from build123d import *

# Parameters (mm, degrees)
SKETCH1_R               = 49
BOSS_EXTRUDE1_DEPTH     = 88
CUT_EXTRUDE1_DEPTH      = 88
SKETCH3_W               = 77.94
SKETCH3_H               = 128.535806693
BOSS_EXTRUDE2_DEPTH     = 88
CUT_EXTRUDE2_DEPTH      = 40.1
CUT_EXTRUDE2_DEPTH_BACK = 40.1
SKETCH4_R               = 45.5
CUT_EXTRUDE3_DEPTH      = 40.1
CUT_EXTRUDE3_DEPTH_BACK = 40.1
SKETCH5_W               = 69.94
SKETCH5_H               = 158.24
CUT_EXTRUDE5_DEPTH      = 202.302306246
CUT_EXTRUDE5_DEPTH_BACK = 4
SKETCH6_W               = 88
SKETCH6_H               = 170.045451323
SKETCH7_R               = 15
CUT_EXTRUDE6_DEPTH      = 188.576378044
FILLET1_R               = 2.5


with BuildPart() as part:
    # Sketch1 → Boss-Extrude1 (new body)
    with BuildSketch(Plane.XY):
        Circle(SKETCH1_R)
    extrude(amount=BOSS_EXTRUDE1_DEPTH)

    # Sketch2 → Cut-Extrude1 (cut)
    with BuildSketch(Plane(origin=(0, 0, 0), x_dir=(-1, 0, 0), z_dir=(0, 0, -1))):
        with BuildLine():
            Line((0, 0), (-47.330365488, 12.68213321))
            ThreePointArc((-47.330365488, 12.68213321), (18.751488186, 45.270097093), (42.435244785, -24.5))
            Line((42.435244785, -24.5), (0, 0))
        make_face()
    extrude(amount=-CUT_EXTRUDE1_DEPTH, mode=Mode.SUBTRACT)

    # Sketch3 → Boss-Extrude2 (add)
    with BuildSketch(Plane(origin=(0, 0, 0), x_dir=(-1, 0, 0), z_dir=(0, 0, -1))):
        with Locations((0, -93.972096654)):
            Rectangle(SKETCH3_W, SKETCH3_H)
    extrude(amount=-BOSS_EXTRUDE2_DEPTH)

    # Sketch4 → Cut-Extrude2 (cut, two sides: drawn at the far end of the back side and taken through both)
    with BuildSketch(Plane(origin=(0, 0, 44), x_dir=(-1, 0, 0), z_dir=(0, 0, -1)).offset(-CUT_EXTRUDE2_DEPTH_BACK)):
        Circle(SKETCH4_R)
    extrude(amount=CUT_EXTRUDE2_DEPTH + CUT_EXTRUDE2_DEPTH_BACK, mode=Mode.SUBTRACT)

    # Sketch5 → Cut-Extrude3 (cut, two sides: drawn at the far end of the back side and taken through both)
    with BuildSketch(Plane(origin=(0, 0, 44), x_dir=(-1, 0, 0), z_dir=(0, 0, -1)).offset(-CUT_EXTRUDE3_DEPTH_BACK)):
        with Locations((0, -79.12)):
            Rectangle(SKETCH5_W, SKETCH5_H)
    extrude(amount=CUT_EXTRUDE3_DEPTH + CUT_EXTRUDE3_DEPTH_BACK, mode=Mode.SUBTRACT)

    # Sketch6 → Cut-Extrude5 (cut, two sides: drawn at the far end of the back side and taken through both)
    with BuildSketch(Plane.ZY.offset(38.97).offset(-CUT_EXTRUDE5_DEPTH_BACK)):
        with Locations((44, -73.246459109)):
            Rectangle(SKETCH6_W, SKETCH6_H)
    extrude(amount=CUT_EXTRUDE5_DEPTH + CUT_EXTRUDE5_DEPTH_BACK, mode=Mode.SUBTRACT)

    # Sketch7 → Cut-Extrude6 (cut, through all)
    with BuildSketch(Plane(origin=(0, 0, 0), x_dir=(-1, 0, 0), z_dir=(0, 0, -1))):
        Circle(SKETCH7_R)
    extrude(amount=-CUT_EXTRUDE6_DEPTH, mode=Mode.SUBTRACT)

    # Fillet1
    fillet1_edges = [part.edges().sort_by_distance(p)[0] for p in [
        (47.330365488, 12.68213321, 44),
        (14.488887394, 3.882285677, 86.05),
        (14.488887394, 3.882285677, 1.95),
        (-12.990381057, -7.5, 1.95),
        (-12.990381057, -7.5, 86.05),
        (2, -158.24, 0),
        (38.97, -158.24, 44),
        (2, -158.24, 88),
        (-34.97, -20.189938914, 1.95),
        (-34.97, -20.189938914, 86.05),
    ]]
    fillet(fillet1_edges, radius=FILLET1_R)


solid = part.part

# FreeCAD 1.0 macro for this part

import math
import FreeCAD as App
import Part
import Sketcher
Q = App.Units.Quantity


def edges_at(feature, points):
    """Names of the edges that pass closest to the given points."""
    edges = feature.Shape.Edges
    near = lambda p: min(range(len(edges)), key=lambda i: edges[i].distToShape(Part.Vertex(*p))[0])
    return sorted({f"Edge{near(p) + 1}" for p in points})

doc = App.newDocument("Part")
body = doc.addObject("PartDesign::Body", "Body")

# Sketch on XY plane
sketch1 = body.newObject("Sketcher::SketchObject", "Sketch")
sketch1.AttachmentSupport = (doc.getObject("XY_Plane"), [""])
sketch1.MapMode = "FlatFace"
sketch1.addGeometry(Part.Circle(App.Vector(0, 0, 0), App.Vector(0, 0, 1), 49), False)
sketch1.addConstraint([
    Sketcher.Constraint("Coincident", 0, 3, -1, 1),
    Sketcher.Constraint("Diameter", 0, Q("98 mm")),
])
pad1 = body.newObject("PartDesign::Pad", "Pad")
pad1.Profile = sketch1
pad1.Length = 88

# Sketch on XY plane
sketch2 = body.newObject("Sketcher::SketchObject", "Sketch001")
sketch2.AttachmentSupport = (doc.getObject("XY_Plane"), [""])
sketch2.MapMode = "FlatFace"
sketch2.addGeometry([
    Part.LineSegment(App.Vector(47, 13, 0), App.Vector(0, 0, 0)),
    Part.LineSegment(App.Vector(0, 0, 0), App.Vector(-42, -24, 0)),
    Part.ArcOfCircle(Part.Circle(App.Vector(0, 0, 0), App.Vector(0, 0, 1), 49), math.radians(15), math.radians(210)),
], False)
sketch2.addConstraint([
    Sketcher.Constraint("Coincident", 0, 2, 1, 1),
    Sketcher.Constraint("Coincident", 1, 2, 2, 2),
    Sketcher.Constraint("Coincident", 2, 1, 0, 1),
    Sketcher.Constraint("Coincident", 2, 3, -1, 1),
    Sketcher.Constraint("Coincident", 0, 2, -1, 1),
    Sketcher.Constraint("Radius", 2, Q("49 mm")),
    Sketcher.Constraint("Angle", 0, Q("-165 deg")),
    Sketcher.Constraint("Angle", 1, Q("-150 deg")),
])
pocket1 = body.newObject("PartDesign::Pocket", "Pocket")
pocket1.Profile = sketch2
pocket1.Length = 88
pocket1.Reversed = True

# Sketch on XY plane
sketch3 = body.newObject("Sketcher::SketchObject", "Sketch002")
sketch3.AttachmentSupport = (doc.getObject("XY_Plane"), [""])
sketch3.MapMode = "FlatFace"
sketch3.addGeometry([
    Part.LineSegment(App.Vector(39, -30, 0), App.Vector(39, -158, 0)),
    Part.LineSegment(App.Vector(39, -158, 0), App.Vector(-39, -158, 0)),
    Part.LineSegment(App.Vector(-39, -158, 0), App.Vector(-39, -30, 0)),
    Part.LineSegment(App.Vector(-39, -30, 0), App.Vector(39, -30, 0)),
], False)
sketch3.addConstraint([
    Sketcher.Constraint("Coincident", 0, 2, 1, 1),
    Sketcher.Constraint("Coincident", 1, 2, 2, 1),
    Sketcher.Constraint("Coincident", 2, 2, 3, 1),
    Sketcher.Constraint("Coincident", 3, 2, 0, 1),
    Sketcher.Constraint("Vertical", 0),
    Sketcher.Constraint("Horizontal", 1),
    Sketcher.Constraint("Vertical", 2),
    Sketcher.Constraint("Horizontal", 3),
    Sketcher.Constraint("DistanceX", 1, 2, 1, 1, Q("77.94 mm")),
    Sketcher.Constraint("DistanceX", -1, 1, 0, 2, Q("38.97 mm")),
    Sketcher.Constraint("DistanceY", 0, 2, -1, 1, Q("158.24 mm")),
    Sketcher.Constraint("DistanceY", 0, 2, 0, 1, Q("128.535807 mm")),
])
pad2 = body.newObject("PartDesign::Pad", "Pad001")
pad2.Profile = sketch3
pad2.Length = 88

# Sketch on XY plane
sketch4 = body.newObject("Sketcher::SketchObject", "Sketch003")
sketch4.AttachmentSupport = (doc.getObject("XY_Plane"), [""])
sketch4.MapMode = "FlatFace"
sketch4.AttachmentOffset = App.Placement(App.Vector(0, 0, 44), App.Rotation())
sketch4.addGeometry(Part.Circle(App.Vector(0, 0, 0), App.Vector(0, 0, 1), 46), False)
sketch4.addConstraint([
    Sketcher.Constraint("Coincident", 0, 3, -1, 1),
    Sketcher.Constraint("Diameter", 0, Q("91 mm")),
])
pocket2 = body.newObject("PartDesign::Pocket", "Pocket001")
pocket2.Profile = sketch4
pocket2.Type = "TwoLengths"
pocket2.Length = 40.1
pocket2.Length2 = 40.1

# Sketch on XY plane
sketch5 = body.newObject("Sketcher::SketchObject", "Sketch004")
sketch5.AttachmentSupport = (doc.getObject("XY_Plane"), [""])
sketch5.MapMode = "FlatFace"
sketch5.AttachmentOffset = App.Placement(App.Vector(0, 0, 44), App.Rotation())
sketch5.addGeometry([
    Part.LineSegment(App.Vector(35, 0, 0), App.Vector(35, -158, 0)),
    Part.LineSegment(App.Vector(35, -158, 0), App.Vector(-35, -158, 0)),
    Part.LineSegment(App.Vector(-35, -158, 0), App.Vector(-35, 0, 0)),
    Part.LineSegment(App.Vector(-35, 0, 0), App.Vector(35, 0, 0)),
], False)
sketch5.addConstraint([
    Sketcher.Constraint("Coincident", 0, 2, 1, 1),
    Sketcher.Constraint("Coincident", 1, 2, 2, 1),
    Sketcher.Constraint("Coincident", 2, 2, 3, 1),
    Sketcher.Constraint("Coincident", 3, 2, 0, 1),
    Sketcher.Constraint("Vertical", 0),
    Sketcher.Constraint("Horizontal", 1),
    Sketcher.Constraint("Vertical", 2),
    Sketcher.Constraint("Horizontal", 3),
    Sketcher.Constraint("Symmetric", 2, 2, 3, 2, -1, 1),
    Sketcher.Constraint("DistanceX", 1, 2, 1, 1, Q("69.94 mm")),
    Sketcher.Constraint("DistanceY", 0, 2, 0, 1, Q("158.24 mm")),
])
pocket3 = body.newObject("PartDesign::Pocket", "Pocket002")
pocket3.Profile = sketch5
pocket3.Type = "TwoLengths"
pocket3.Length = 40.1
pocket3.Length2 = 40.1

# Sketch on YZ plane
sketch6 = body.newObject("Sketcher::SketchObject", "Sketch005")
sketch6.AttachmentSupport = (doc.getObject("YZ_Plane"), [""])
sketch6.MapMode = "FlatFace"
sketch6.AttachmentOffset = App.Placement(App.Vector(0, 0, -38.97), App.Rotation())
sketch6.addGeometry([
    Part.LineSegment(App.Vector(12, 0, 0), App.Vector(-158, 0, 0)),
    Part.LineSegment(App.Vector(-158, 0, 0), App.Vector(-158, 88, 0)),
    Part.LineSegment(App.Vector(-158, 88, 0), App.Vector(12, 88, 0)),
    Part.LineSegment(App.Vector(12, 88, 0), App.Vector(12, 0, 0)),
], False)
sketch6.addConstraint([
    Sketcher.Constraint("Coincident", 0, 2, 1, 1),
    Sketcher.Constraint("Coincident", 1, 2, 2, 1),
    Sketcher.Constraint("Coincident", 2, 2, 3, 1),
    Sketcher.Constraint("Coincident", 3, 2, 0, 1),
    Sketcher.Constraint("Horizontal", 0),
    Sketcher.Constraint("Vertical", 1),
    Sketcher.Constraint("Horizontal", 2),
    Sketcher.Constraint("Vertical", 3),
    Sketcher.Constraint("PointOnObject", 0, 2, -1),
    Sketcher.Constraint("DistanceY", 1, 1, 1, 2, Q("88 mm")),
    Sketcher.Constraint("DistanceX", 0, 2, 0, 1, Q("170.045451 mm")),
    Sketcher.Constraint("DistanceX", 0, 2, -1, 1, Q("158.269185 mm")),
])
pocket4 = body.newObject("PartDesign::Pocket", "Pocket003")
pocket4.Profile = sketch6
pocket4.Type = "TwoLengths"
pocket4.Length = 202.302306
pocket4.Length2 = 4

# Sketch on XY plane
sketch7 = body.newObject("Sketcher::SketchObject", "Sketch006")
sketch7.AttachmentSupport = (doc.getObject("XY_Plane"), [""])
sketch7.MapMode = "FlatFace"
sketch7.addGeometry(Part.Circle(App.Vector(0, 0, 0), App.Vector(0, 0, 1), 15), False)
sketch7.addConstraint([
    Sketcher.Constraint("Coincident", 0, 3, -1, 1),
    Sketcher.Constraint("Diameter", 0, Q("30 mm")),
])
pocket5 = body.newObject("PartDesign::Pocket", "Pocket004")
pocket5.Profile = sketch7
pocket5.Type = "ThroughAll"
pocket5.Reversed = True
doc.recompute()

fillet = body.newObject("PartDesign::Fillet", "Fillet")
fillet.Base = (pocket5, edges_at(pocket5, [
    (47.33, 12.682, 44),
    (14.489, 3.882, 86.05),
    (14.489, 3.882, 1.95),
    (-12.99, -7.5, 1.95),
    (-12.99, -7.5, 86.05),
    (2, -158.24, 0),
    (38.97, -158.24, 44),
    (2, -158.24, 88),
    (-34.97, -20.19, 1.95),
    (-34.97, -20.19, 86.05),
]))
fillet.Radius = 2.5

doc.recompute()
